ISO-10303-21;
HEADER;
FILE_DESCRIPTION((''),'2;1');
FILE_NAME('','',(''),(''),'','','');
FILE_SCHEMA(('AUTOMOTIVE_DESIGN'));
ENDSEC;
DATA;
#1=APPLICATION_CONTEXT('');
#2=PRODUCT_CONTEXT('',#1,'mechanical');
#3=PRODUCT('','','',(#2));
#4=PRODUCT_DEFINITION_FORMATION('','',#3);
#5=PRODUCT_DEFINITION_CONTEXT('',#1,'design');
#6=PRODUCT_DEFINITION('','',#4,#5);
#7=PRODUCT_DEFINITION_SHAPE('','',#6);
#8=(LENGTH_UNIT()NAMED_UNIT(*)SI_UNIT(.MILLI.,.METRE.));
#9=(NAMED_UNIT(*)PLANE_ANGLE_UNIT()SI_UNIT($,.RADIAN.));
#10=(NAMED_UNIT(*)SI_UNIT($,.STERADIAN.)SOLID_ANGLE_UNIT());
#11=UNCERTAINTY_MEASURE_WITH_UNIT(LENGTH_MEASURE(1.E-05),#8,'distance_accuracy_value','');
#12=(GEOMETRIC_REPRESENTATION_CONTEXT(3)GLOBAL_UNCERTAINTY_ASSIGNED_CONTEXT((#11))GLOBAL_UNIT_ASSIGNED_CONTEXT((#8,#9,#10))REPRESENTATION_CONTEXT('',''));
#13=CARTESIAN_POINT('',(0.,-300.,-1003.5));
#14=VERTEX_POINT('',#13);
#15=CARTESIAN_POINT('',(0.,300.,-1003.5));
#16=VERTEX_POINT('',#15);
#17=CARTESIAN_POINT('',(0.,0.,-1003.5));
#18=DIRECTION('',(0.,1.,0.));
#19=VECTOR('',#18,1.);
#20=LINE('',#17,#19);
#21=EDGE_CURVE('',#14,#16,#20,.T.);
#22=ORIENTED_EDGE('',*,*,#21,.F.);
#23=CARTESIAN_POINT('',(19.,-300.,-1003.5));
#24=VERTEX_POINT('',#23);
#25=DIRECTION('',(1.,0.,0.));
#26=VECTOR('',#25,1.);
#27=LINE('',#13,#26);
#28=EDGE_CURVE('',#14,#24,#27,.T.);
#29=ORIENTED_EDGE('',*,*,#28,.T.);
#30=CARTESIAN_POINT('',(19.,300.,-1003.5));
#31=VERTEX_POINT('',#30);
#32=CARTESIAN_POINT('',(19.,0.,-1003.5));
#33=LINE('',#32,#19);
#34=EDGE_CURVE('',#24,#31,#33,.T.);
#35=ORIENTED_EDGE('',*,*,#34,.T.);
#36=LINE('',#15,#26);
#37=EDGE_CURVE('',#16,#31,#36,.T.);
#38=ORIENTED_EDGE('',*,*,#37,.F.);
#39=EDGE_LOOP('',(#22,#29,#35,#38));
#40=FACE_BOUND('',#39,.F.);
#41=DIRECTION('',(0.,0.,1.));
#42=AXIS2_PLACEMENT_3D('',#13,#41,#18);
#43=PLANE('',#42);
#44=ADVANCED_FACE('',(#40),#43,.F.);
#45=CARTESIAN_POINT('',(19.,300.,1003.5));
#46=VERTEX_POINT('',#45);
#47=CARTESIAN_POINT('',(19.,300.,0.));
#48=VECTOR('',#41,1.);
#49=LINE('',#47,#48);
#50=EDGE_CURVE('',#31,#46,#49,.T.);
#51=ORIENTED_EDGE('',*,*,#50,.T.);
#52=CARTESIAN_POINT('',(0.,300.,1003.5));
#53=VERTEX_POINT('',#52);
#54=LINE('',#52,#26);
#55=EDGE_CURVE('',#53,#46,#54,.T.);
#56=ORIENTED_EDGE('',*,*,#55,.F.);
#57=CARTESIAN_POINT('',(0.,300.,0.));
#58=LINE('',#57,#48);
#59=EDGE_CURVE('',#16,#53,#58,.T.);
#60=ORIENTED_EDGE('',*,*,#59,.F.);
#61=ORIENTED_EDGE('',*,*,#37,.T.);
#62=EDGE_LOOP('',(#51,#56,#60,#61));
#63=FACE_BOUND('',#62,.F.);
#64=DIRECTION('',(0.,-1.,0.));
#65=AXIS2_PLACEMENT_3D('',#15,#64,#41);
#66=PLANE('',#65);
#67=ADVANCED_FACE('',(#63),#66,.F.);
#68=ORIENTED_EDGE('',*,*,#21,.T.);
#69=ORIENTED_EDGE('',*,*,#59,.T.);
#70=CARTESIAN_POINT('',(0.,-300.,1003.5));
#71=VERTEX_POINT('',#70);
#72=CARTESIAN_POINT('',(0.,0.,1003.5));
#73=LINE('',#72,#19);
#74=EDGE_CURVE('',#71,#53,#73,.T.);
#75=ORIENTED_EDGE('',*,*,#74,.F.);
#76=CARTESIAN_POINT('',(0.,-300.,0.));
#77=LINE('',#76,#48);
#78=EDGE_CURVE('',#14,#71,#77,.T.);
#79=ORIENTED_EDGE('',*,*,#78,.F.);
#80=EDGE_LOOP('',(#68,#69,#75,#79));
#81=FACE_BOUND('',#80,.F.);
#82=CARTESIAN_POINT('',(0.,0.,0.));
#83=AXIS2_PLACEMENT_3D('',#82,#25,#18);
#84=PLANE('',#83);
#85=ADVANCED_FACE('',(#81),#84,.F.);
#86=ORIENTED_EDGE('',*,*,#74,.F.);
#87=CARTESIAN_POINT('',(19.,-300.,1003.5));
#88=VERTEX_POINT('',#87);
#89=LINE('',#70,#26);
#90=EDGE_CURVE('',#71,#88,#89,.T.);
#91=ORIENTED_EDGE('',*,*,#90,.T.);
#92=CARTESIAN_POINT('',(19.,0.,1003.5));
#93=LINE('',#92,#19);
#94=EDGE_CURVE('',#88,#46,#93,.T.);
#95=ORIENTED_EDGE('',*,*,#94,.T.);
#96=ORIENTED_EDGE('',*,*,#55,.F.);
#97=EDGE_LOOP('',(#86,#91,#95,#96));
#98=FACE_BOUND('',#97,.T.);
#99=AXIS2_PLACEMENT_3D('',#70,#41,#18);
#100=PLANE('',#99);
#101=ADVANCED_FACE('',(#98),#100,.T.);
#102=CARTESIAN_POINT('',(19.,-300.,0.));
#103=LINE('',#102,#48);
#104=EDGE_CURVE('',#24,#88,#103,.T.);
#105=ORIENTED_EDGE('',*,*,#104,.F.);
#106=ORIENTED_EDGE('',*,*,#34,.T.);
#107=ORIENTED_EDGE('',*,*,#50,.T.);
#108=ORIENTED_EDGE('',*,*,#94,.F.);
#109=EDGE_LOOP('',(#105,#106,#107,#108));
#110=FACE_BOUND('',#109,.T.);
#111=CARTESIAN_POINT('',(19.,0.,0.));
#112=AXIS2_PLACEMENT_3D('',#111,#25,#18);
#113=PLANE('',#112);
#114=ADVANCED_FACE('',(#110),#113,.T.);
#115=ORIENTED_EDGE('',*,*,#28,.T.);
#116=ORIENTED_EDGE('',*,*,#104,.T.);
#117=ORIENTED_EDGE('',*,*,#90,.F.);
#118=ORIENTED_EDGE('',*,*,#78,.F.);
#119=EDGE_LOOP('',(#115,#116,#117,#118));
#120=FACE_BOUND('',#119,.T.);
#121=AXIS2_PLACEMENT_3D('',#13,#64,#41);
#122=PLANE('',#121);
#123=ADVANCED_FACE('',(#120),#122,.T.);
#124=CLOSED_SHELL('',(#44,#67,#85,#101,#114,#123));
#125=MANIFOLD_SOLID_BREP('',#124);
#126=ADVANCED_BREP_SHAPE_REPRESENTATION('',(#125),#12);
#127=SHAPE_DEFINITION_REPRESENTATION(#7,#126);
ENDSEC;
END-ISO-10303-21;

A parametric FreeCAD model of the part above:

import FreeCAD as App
import Part
import Sketcher

V = App.Vector


def add_polygon(sketch, points):
    """Adds a closed chain of lines whose ends are joined by coincident constraints."""
    first, n = sketch.GeometryCount, len(points)
    for a, b in zip(points, points[1:] + points[:1]):
        sketch.addGeometry(Part.LineSegment(App.Vector(*a, 0), App.Vector(*b, 0)), False)
    for i in range(n):
        sketch.addConstraint(Sketcher.Constraint("Coincident", first + i, 2, first + (i + 1) % n, 1))

doc = App.newDocument("Part")
params = doc.addObject("Spreadsheet::Sheet", "Params")
for row, (alias, value) in enumerate([
    ("sketch1_width", "600 mm"),
    ("sketch1_height", "2007 mm"),
    ("pad1_length", "19 mm"),
], start=1):
    params.set(f"A{row}", alias)
    params.set(f"B{row}", "=" + value)
    params.setAlias(f"B{row}", alias)

body = doc.addObject("PartDesign::Body", "Body")

# Sketch on YZ plane
sketch1 = body.newObject("Sketcher::SketchObject", "Sketch")
sketch1.AttachmentSupport = (doc.getObject("YZ_Plane"), [""])
sketch1.MapMode = "FlatFace"
add_polygon(sketch1, [(-300, 1004), (-300, -1004), (300, -1004), (300, 1004)])  # lines 0-3
sketch1.addConstraint(Sketcher.Constraint("Vertical", 0))
sketch1.addConstraint(Sketcher.Constraint("Horizontal", 1))
sketch1.addConstraint(Sketcher.Constraint("Vertical", 2))
sketch1.addConstraint(Sketcher.Constraint("Horizontal", 3))
sketch1.addConstraint(Sketcher.Constraint("Symmetric", 0, 2, 2, 2, -1, 1))
sketch1.addConstraint(Sketcher.Constraint("DistanceX", 1, 1, 1, 2, 600.0))
sketch1.addConstraint(Sketcher.Constraint("DistanceY", 0, 2, 0, 1, 2007.0))
sketch1.setExpression("Constraints[9]", "Params.sketch1_width")
sketch1.setExpression("Constraints[10]", "Params.sketch1_height")
pad1 = body.newObject("PartDesign::Pad", "Pad")
pad1.Profile = sketch1
pad1.setExpression("Length", "Params.pad1_length")

doc.recompute()
